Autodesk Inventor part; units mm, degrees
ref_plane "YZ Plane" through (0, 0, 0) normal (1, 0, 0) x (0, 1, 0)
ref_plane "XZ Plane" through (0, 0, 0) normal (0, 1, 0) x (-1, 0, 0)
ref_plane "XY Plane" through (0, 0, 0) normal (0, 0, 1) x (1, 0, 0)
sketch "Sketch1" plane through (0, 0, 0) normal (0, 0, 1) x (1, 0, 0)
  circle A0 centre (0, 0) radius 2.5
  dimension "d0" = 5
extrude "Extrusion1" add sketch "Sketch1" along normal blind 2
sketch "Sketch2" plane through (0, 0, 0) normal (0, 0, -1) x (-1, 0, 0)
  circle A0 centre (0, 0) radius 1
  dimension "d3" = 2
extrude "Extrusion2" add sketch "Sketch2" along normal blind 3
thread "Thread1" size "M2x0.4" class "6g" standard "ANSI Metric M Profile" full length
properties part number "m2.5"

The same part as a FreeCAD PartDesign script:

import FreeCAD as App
import Part
import Sketcher

V = App.Vector
Q = App.Units.Quantity

doc = App.newDocument("Part")
body = doc.addObject("PartDesign::Body", "Body")

# Sketch on XY plane
sketch1 = body.newObject("Sketcher::SketchObject", "Sketch")
sketch1.AttachmentSupport = (doc.getObject("XY_Plane"), [""])
sketch1.MapMode = "FlatFace"
sketch1.addGeometry(Part.Circle(V(0, 0, 0), V(0, 0, 1), 2.5), False)
sketch1.addConstraint([
    Sketcher.Constraint("Coincident", 0, 3, -1, 1),
    Sketcher.Constraint("Diameter", 0, Q("5 mm")),
])
pad1 = body.newObject("PartDesign::Pad", "Pad")
pad1.Profile = sketch1
pad1.Length = 2

# Sketch on XY plane
sketch2 = body.newObject("Sketcher::SketchObject", "Sketch001")
sketch2.AttachmentSupport = (doc.getObject("XY_Plane"), [""])
sketch2.MapMode = "FlatFace"
sketch2.addGeometry(Part.Circle(V(0, 0, 0), V(0, 0, 1), 1), False)
sketch2.addConstraint([
    Sketcher.Constraint("Coincident", 0, 3, -1, 1),
    Sketcher.Constraint("Diameter", 0, Q("2 mm")),
])
pad2 = body.newObject("PartDesign::Pad", "Pad001")
pad2.Profile = sketch2
pad2.Length = 3
pad2.Reversed = True

doc.recompute()
